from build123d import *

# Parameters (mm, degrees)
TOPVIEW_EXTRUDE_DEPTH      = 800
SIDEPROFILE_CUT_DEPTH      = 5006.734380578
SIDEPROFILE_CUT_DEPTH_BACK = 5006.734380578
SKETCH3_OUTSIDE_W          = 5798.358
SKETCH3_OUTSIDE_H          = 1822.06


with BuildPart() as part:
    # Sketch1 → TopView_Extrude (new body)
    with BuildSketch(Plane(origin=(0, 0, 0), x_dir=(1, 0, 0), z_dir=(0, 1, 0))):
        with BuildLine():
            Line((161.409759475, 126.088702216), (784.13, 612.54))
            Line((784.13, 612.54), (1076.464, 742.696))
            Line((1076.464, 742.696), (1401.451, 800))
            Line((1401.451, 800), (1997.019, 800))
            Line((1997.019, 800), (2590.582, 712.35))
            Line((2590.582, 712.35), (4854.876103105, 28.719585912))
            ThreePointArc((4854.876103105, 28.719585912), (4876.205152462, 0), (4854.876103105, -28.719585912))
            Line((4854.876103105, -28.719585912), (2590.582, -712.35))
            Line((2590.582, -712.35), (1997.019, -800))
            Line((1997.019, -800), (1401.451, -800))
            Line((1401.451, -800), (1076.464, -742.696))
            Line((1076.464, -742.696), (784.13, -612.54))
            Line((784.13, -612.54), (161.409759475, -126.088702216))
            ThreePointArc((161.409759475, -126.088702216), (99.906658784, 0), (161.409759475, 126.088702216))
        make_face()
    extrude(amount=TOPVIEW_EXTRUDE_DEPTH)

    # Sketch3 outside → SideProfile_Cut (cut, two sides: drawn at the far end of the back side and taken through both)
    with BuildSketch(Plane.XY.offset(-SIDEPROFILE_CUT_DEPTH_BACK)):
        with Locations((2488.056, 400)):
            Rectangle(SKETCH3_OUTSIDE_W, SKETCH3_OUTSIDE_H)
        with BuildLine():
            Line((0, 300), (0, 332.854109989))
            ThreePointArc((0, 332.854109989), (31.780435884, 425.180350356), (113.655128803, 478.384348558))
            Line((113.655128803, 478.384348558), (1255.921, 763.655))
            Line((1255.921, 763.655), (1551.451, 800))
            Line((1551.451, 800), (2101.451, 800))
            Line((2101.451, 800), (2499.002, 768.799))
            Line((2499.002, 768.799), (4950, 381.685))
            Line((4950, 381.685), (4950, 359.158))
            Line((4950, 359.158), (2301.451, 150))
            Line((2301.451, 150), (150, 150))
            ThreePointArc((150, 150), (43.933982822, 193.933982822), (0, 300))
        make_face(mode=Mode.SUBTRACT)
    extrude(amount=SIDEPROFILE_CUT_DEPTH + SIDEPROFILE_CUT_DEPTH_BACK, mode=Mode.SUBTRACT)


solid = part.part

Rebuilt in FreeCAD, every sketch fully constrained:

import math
import FreeCAD as App
import Part
import Sketcher
from FreeCAD import Vector
Q = App.Units.Quantity


def add_polygon(sketch, points):
    """Adds a closed chain of lines whose ends are joined by coincident constraints."""
    first, n = sketch.GeometryCount, len(points)
    for a, b in zip(points, points[1:] + points[:1]):
        sketch.addGeometry(Part.LineSegment(App.Vector(*a, 0), App.Vector(*b, 0)), False)
    for i in range(n):
        sketch.addConstraint(Sketcher.Constraint("Coincident", first + i, 2, first + (i + 1) % n, 1))

doc = App.newDocument("Part")
body = doc.addObject("PartDesign::Body", "Body")

# Sketch on XZ plane
sketch1 = body.newObject("Sketcher::SketchObject", "Sketch")
sketch1.AttachmentSupport = (doc.getObject("XZ_Plane"), [""])
sketch1.MapMode = "FlatFace"
sketch1.addGeometry(Part.LineSegment(Vector(784.13, -612.54, 0), Vector(161.409759, -126.088702, 0)), False)
sketch1.addGeometry(Part.ArcOfCircle(Part.Circle(Vector(259.906659, 0, 0), Vector(0, 0, 1), 160), math.radians(127.995939), math.radians(232.004061)), False)
sketch1.addGeometry(Part.LineSegment(Vector(161.409759, 126.088702, 0), Vector(784.13, 612.54, 0)), False)
sketch1.addGeometry(Part.LineSegment(Vector(784.13, 612.54, 0), Vector(1076.464, 742.696, 0)), False)
sketch1.addGeometry(Part.LineSegment(Vector(1076.464, 742.696, 0), Vector(1401.451, 800, 0)), False)
sketch1.addGeometry(Part.LineSegment(Vector(1401.451, 800, 0), Vector(1997.019, 800, 0)), False)
sketch1.addGeometry(Part.LineSegment(Vector(1997.019, 800, 0), Vector(2590.582, 712.35, 0)), False)
sketch1.addGeometry(Part.LineSegment(Vector(2590.582, 712.35, 0), Vector(4854.876103, 28.719586, 0)), False)
sketch1.addGeometry(Part.ArcOfCircle(Part.Circle(Vector(4846.205152, 0, 0), Vector(0, 0, 1), 30), math.radians(-73.200007), math.radians(73.200007)), False)
sketch1.addGeometry(Part.LineSegment(Vector(4854.876103, -28.719586, 0), Vector(2590.582, -712.35, 0)), False)
sketch1.addGeometry(Part.LineSegment(Vector(2590.582, -712.35, 0), Vector(1997.019, -800, 0)), False)
sketch1.addGeometry(Part.LineSegment(Vector(1997.019, -800, 0), Vector(1401.451, -800, 0)), False)
sketch1.addGeometry(Part.LineSegment(Vector(1401.451, -800, 0), Vector(1076.464, -742.696, 0)), False)
sketch1.addGeometry(Part.LineSegment(Vector(1076.464, -742.696, 0), Vector(784.13, -612.54, 0)), False)
sketch1.addConstraint(Sketcher.Constraint("Coincident", 0, 2, 1, 2))
sketch1.addConstraint(Sketcher.Constraint("Coincident", 1, 1, 2, 1))
sketch1.addConstraint(Sketcher.Constraint("Coincident", 2, 2, 3, 1))
sketch1.addConstraint(Sketcher.Constraint("Coincident", 3, 2, 4, 1))
sketch1.addConstraint(Sketcher.Constraint("Coincident", 4, 2, 5, 1))
sketch1.addConstraint(Sketcher.Constraint("Coincident", 5, 2, 6, 1))
sketch1.addConstraint(Sketcher.Constraint("Coincident", 6, 2, 7, 1))
sketch1.addConstraint(Sketcher.Constraint("Coincident", 7, 2, 8, 2))
sketch1.addConstraint(Sketcher.Constraint("Coincident", 8, 1, 9, 1))
sketch1.addConstraint(Sketcher.Constraint("Coincident", 9, 2, 10, 1))
sketch1.addConstraint(Sketcher.Constraint("Coincident", 10, 2, 11, 1))
sketch1.addConstraint(Sketcher.Constraint("Coincident", 11, 2, 12, 1))
sketch1.addConstraint(Sketcher.Constraint("Coincident", 12, 2, 13, 1))
sketch1.addConstraint(Sketcher.Constraint("Coincident", 13, 2, 0, 1))
sketch1.addConstraint(Sketcher.Constraint("Horizontal", 5))
sketch1.addConstraint(Sketcher.Constraint("Horizontal", 11))
sketch1.addConstraint(Sketcher.Constraint("PointOnObject", 1, 3, -1))
sketch1.addConstraint(Sketcher.Constraint("PointOnObject", 8, 3, -1))
sketch1.addConstraint(Sketcher.Constraint("Radius", 1, Q("160 mm")))
sketch1.addConstraint(Sketcher.Constraint("Radius", 8, Q("30 mm")))
sketch1.addConstraint(Sketcher.Constraint("DistanceY", -1, 1, 4, 2, Q("800 mm")))
sketch1.addConstraint(Sketcher.Constraint("DistanceY", 10, 2, -1, 1, Q("800 mm")))
sketch1.addConstraint(Sketcher.Constraint("DistanceY", 9, 2, 6, 2, Q("1424.7 mm")))
sketch1.addConstraint(Sketcher.Constraint("DistanceX", 5, 1, 5, 2, Q("595.568 mm")))
sketch1.addConstraint(Sketcher.Constraint("DistanceX", 11, 2, 11, 1, Q("595.568 mm")))
sketch1.addConstraint(Sketcher.Constraint("DistanceX", -1, 1, 2, 2, Q("784.13 mm")))
sketch1.addConstraint(Sketcher.Constraint("DistanceY", -1, 1, 2, 2, Q("612.54 mm")))
sketch1.addConstraint(Sketcher.Constraint("DistanceY", -1, 1, 6, 2, Q("712.35 mm")))
sketch1.addConstraint(Sketcher.Constraint("DistanceX", -1, 1, 13, 2, Q("784.13 mm")))
sketch1.addConstraint(Sketcher.Constraint("DistanceY", 13, 2, -1, 1, Q("612.54 mm")))
sketch1.addConstraint(Sketcher.Constraint("DistanceX", -1, 1, 3, 2, Q("1076.464 mm")))
sketch1.addConstraint(Sketcher.Constraint("DistanceY", -1, 1, 3, 2, Q("742.696 mm")))
sketch1.addConstraint(Sketcher.Constraint("DistanceX", -1, 1, 4, 2, Q("1401.451 mm")))
sketch1.addConstraint(Sketcher.Constraint("DistanceX", -1, 1, 6, 2, Q("2590.582 mm")))
sketch1.addConstraint(Sketcher.Constraint("DistanceX", -1, 1, 9, 2, Q("2590.582 mm")))
sketch1.addConstraint(Sketcher.Constraint("DistanceX", -1, 1, 10, 2, Q("1997.019 mm")))
sketch1.addConstraint(Sketcher.Constraint("DistanceX", -1, 1, 12, 2, Q("1076.464 mm")))
sketch1.addConstraint(Sketcher.Constraint("DistanceY", 12, 2, -1, 1, Q("742.696 mm")))
sketch1.addConstraint(Sketcher.Constraint("DistanceX", 0, 2, 1, 3, Q("98.496899 mm")))
sketch1.addConstraint(Sketcher.Constraint("DistanceX", 1, 1, 1, 3, Q("98.496899 mm")))
sketch1.addConstraint(Sketcher.Constraint("Distance", 0, Q("790.199572 mm")))
sketch1.addConstraint(Sketcher.Constraint("Distance", 7, Q("2365.24382 mm")))
sketch1.addConstraint(Sketcher.Constraint("Distance", 9, Q("2365.24382 mm")))
sketch1.addConstraint(Sketcher.Constraint("DistanceX", 8, 3, 7, 2, Q("8.670951 mm")))
pad1 = body.newObject("PartDesign::Pad", "Pad")
pad1.Profile = sketch1
pad1.Length = 800
pad1.Reversed = True

# Sketch on XY plane
sketch2 = body.newObject("Sketcher::SketchObject", "Sketch001")
sketch2.AttachmentSupport = (doc.getObject("XY_Plane"), [""])
sketch2.MapMode = "FlatFace"
add_polygon(sketch2, [(-411, 1311), (-411, -511), (5387, -511), (5387, 1311)])  # lines 0-3
sketch2.addGeometry(Part.ArcOfCircle(Part.Circle(Vector(150, 300, 0), Vector(0, 0, 1), 150), math.radians(180), math.radians(270)), False)  # 4
sketch2.addGeometry(Part.LineSegment(Vector(0, 300, 0), Vector(0, 333, 0)), False)  # 5
sketch2.addGeometry(Part.ArcOfCircle(Part.Circle(Vector(150, 333, 0), Vector(0, 0, 1), 150), math.radians(104), math.radians(180)), False)  # 6
sketch2.addGeometry(Part.LineSegment(Vector(114, 478, 0), Vector(1256, 764, 0)), False)  # 7
sketch2.addGeometry(Part.LineSegment(Vector(1256, 764, 0), Vector(1551, 800, 0)), False)  # 8
sketch2.addGeometry(Part.LineSegment(Vector(1551, 800, 0), Vector(2101, 800, 0)), False)  # 9
sketch2.addGeometry(Part.LineSegment(Vector(2101, 800, 0), Vector(2499, 769, 0)), False)  # 10
sketch2.addGeometry(Part.LineSegment(Vector(2499, 769, 0), Vector(4950, 382, 0)), False)  # 11
sketch2.addGeometry(Part.LineSegment(Vector(4950, 382, 0), Vector(4950, 359, 0)), False)  # 12
sketch2.addGeometry(Part.LineSegment(Vector(4950, 359, 0), Vector(2301, 150, 0)), False)  # 13
sketch2.addGeometry(Part.LineSegment(Vector(2301, 150, 0), Vector(150, 150, 0)), False)  # 14
sketch2.addConstraint(Sketcher.Constraint("Tangent", 4, 1, 5, 1))
sketch2.addConstraint(Sketcher.Constraint("Tangent", 5, 2, 6, 2))
sketch2.addConstraint(Sketcher.Constraint("Tangent", 6, 1, 7, 1))
sketch2.addConstraint(Sketcher.Constraint("Coincident", 7, 2, 8, 1))
sketch2.addConstraint(Sketcher.Constraint("Coincident", 8, 2, 9, 1))
sketch2.addConstraint(Sketcher.Constraint("Coincident", 9, 2, 10, 1))
sketch2.addConstraint(Sketcher.Constraint("Coincident", 10, 2, 11, 1))
sketch2.addConstraint(Sketcher.Constraint("Coincident", 11, 2, 12, 1))
sketch2.addConstraint(Sketcher.Constraint("Coincident", 12, 2, 13, 1))
sketch2.addConstraint(Sketcher.Constraint("Coincident", 13, 2, 14, 1))
sketch2.addConstraint(Sketcher.Constraint("Tangent", 14, 2, 4, 2))
sketch2.addConstraint(Sketcher.Constraint("Vertical", 0))
sketch2.addConstraint(Sketcher.Constraint("Horizontal", 1))
sketch2.addConstraint(Sketcher.Constraint("Vertical", 2))
sketch2.addConstraint(Sketcher.Constraint("Horizontal", 3))
sketch2.addConstraint(Sketcher.Constraint("Vertical", 5))
sketch2.addConstraint(Sketcher.Constraint("Horizontal", 9))
sketch2.addConstraint(Sketcher.Constraint("Vertical", 12))
sketch2.addConstraint(Sketcher.Constraint("Horizontal", 14))
sketch2.addConstraint(Sketcher.Constraint("Equal", 4, 6))
sketch2.addConstraint(Sketcher.Constraint("PointOnObject", 4, 1, -2))
sketch2.addConstraint(Sketcher.Constraint("Radius", 4, Q("150 mm")))
sketch2.addConstraint(Sketcher.Constraint("DistanceX", 9, 1, 9, 2, Q("550 mm")))
sketch2.addConstraint(Sketcher.Constraint("DistanceY", -1, 1, 4, 3, Q("300 mm")))
sketch2.addConstraint(Sketcher.Constraint("DistanceY", -1, 1, 8, 2, Q("800 mm")))
sketch2.addConstraint(Sketcher.Constraint("DistanceX", -1, 1, 11, 2, Q("4950 mm")))
sketch2.addConstraint(Sketcher.Constraint("DistanceX", 9, 2, 13, 2, Q("200 mm")))
sketch2.addConstraint(Sketcher.Constraint("DistanceY", 0, 2, 0, 1, Q("1822.06 mm")))
sketch2.addConstraint(Sketcher.Constraint("DistanceX", 1, 1, 1, 2, Q("5798.358 mm")))
sketch2.addConstraint(Sketcher.Constraint("DistanceX", 14, 2, 14, 1, Q("2151.451 mm")))
sketch2.addConstraint(Sketcher.Constraint("DistanceY", 12, 2, 12, 1, Q("22.527 mm")))
sketch2.addConstraint(Sketcher.Constraint("DistanceY", 0, 2, -1, 1, Q("511.03 mm")))
sketch2.addConstraint(Sketcher.Constraint("DistanceX", 7, 2, 8, 2, Q("295.53 mm")))
sketch2.addConstraint(Sketcher.Constraint("Distance", 7, Q("1177.348999 mm")))
sketch2.addConstraint(Sketcher.Constraint("DistanceX", 0, 2, -1, 1, Q("411.123 mm")))
sketch2.addConstraint(Sketcher.Constraint("DistanceY", -1, 1, 7, 2, Q("763.655 mm")))
sketch2.addConstraint(Sketcher.Constraint("DistanceX", -1, 1, 10, 2, Q("2499.002 mm")))
sketch2.addConstraint(Sketcher.Constraint("DistanceY", -1, 1, 10, 2, Q("768.799 mm")))
sketch2.addConstraint(Sketcher.Constraint("DistanceY", -1, 1, 11, 2, Q("381.685 mm")))
pocket1 = body.newObject("PartDesign::Pocket", "Pocket")
pocket1.Profile = sketch2
pocket1.Type = "ThroughAll"
pocket1.Midplane = True

doc.recompute()
